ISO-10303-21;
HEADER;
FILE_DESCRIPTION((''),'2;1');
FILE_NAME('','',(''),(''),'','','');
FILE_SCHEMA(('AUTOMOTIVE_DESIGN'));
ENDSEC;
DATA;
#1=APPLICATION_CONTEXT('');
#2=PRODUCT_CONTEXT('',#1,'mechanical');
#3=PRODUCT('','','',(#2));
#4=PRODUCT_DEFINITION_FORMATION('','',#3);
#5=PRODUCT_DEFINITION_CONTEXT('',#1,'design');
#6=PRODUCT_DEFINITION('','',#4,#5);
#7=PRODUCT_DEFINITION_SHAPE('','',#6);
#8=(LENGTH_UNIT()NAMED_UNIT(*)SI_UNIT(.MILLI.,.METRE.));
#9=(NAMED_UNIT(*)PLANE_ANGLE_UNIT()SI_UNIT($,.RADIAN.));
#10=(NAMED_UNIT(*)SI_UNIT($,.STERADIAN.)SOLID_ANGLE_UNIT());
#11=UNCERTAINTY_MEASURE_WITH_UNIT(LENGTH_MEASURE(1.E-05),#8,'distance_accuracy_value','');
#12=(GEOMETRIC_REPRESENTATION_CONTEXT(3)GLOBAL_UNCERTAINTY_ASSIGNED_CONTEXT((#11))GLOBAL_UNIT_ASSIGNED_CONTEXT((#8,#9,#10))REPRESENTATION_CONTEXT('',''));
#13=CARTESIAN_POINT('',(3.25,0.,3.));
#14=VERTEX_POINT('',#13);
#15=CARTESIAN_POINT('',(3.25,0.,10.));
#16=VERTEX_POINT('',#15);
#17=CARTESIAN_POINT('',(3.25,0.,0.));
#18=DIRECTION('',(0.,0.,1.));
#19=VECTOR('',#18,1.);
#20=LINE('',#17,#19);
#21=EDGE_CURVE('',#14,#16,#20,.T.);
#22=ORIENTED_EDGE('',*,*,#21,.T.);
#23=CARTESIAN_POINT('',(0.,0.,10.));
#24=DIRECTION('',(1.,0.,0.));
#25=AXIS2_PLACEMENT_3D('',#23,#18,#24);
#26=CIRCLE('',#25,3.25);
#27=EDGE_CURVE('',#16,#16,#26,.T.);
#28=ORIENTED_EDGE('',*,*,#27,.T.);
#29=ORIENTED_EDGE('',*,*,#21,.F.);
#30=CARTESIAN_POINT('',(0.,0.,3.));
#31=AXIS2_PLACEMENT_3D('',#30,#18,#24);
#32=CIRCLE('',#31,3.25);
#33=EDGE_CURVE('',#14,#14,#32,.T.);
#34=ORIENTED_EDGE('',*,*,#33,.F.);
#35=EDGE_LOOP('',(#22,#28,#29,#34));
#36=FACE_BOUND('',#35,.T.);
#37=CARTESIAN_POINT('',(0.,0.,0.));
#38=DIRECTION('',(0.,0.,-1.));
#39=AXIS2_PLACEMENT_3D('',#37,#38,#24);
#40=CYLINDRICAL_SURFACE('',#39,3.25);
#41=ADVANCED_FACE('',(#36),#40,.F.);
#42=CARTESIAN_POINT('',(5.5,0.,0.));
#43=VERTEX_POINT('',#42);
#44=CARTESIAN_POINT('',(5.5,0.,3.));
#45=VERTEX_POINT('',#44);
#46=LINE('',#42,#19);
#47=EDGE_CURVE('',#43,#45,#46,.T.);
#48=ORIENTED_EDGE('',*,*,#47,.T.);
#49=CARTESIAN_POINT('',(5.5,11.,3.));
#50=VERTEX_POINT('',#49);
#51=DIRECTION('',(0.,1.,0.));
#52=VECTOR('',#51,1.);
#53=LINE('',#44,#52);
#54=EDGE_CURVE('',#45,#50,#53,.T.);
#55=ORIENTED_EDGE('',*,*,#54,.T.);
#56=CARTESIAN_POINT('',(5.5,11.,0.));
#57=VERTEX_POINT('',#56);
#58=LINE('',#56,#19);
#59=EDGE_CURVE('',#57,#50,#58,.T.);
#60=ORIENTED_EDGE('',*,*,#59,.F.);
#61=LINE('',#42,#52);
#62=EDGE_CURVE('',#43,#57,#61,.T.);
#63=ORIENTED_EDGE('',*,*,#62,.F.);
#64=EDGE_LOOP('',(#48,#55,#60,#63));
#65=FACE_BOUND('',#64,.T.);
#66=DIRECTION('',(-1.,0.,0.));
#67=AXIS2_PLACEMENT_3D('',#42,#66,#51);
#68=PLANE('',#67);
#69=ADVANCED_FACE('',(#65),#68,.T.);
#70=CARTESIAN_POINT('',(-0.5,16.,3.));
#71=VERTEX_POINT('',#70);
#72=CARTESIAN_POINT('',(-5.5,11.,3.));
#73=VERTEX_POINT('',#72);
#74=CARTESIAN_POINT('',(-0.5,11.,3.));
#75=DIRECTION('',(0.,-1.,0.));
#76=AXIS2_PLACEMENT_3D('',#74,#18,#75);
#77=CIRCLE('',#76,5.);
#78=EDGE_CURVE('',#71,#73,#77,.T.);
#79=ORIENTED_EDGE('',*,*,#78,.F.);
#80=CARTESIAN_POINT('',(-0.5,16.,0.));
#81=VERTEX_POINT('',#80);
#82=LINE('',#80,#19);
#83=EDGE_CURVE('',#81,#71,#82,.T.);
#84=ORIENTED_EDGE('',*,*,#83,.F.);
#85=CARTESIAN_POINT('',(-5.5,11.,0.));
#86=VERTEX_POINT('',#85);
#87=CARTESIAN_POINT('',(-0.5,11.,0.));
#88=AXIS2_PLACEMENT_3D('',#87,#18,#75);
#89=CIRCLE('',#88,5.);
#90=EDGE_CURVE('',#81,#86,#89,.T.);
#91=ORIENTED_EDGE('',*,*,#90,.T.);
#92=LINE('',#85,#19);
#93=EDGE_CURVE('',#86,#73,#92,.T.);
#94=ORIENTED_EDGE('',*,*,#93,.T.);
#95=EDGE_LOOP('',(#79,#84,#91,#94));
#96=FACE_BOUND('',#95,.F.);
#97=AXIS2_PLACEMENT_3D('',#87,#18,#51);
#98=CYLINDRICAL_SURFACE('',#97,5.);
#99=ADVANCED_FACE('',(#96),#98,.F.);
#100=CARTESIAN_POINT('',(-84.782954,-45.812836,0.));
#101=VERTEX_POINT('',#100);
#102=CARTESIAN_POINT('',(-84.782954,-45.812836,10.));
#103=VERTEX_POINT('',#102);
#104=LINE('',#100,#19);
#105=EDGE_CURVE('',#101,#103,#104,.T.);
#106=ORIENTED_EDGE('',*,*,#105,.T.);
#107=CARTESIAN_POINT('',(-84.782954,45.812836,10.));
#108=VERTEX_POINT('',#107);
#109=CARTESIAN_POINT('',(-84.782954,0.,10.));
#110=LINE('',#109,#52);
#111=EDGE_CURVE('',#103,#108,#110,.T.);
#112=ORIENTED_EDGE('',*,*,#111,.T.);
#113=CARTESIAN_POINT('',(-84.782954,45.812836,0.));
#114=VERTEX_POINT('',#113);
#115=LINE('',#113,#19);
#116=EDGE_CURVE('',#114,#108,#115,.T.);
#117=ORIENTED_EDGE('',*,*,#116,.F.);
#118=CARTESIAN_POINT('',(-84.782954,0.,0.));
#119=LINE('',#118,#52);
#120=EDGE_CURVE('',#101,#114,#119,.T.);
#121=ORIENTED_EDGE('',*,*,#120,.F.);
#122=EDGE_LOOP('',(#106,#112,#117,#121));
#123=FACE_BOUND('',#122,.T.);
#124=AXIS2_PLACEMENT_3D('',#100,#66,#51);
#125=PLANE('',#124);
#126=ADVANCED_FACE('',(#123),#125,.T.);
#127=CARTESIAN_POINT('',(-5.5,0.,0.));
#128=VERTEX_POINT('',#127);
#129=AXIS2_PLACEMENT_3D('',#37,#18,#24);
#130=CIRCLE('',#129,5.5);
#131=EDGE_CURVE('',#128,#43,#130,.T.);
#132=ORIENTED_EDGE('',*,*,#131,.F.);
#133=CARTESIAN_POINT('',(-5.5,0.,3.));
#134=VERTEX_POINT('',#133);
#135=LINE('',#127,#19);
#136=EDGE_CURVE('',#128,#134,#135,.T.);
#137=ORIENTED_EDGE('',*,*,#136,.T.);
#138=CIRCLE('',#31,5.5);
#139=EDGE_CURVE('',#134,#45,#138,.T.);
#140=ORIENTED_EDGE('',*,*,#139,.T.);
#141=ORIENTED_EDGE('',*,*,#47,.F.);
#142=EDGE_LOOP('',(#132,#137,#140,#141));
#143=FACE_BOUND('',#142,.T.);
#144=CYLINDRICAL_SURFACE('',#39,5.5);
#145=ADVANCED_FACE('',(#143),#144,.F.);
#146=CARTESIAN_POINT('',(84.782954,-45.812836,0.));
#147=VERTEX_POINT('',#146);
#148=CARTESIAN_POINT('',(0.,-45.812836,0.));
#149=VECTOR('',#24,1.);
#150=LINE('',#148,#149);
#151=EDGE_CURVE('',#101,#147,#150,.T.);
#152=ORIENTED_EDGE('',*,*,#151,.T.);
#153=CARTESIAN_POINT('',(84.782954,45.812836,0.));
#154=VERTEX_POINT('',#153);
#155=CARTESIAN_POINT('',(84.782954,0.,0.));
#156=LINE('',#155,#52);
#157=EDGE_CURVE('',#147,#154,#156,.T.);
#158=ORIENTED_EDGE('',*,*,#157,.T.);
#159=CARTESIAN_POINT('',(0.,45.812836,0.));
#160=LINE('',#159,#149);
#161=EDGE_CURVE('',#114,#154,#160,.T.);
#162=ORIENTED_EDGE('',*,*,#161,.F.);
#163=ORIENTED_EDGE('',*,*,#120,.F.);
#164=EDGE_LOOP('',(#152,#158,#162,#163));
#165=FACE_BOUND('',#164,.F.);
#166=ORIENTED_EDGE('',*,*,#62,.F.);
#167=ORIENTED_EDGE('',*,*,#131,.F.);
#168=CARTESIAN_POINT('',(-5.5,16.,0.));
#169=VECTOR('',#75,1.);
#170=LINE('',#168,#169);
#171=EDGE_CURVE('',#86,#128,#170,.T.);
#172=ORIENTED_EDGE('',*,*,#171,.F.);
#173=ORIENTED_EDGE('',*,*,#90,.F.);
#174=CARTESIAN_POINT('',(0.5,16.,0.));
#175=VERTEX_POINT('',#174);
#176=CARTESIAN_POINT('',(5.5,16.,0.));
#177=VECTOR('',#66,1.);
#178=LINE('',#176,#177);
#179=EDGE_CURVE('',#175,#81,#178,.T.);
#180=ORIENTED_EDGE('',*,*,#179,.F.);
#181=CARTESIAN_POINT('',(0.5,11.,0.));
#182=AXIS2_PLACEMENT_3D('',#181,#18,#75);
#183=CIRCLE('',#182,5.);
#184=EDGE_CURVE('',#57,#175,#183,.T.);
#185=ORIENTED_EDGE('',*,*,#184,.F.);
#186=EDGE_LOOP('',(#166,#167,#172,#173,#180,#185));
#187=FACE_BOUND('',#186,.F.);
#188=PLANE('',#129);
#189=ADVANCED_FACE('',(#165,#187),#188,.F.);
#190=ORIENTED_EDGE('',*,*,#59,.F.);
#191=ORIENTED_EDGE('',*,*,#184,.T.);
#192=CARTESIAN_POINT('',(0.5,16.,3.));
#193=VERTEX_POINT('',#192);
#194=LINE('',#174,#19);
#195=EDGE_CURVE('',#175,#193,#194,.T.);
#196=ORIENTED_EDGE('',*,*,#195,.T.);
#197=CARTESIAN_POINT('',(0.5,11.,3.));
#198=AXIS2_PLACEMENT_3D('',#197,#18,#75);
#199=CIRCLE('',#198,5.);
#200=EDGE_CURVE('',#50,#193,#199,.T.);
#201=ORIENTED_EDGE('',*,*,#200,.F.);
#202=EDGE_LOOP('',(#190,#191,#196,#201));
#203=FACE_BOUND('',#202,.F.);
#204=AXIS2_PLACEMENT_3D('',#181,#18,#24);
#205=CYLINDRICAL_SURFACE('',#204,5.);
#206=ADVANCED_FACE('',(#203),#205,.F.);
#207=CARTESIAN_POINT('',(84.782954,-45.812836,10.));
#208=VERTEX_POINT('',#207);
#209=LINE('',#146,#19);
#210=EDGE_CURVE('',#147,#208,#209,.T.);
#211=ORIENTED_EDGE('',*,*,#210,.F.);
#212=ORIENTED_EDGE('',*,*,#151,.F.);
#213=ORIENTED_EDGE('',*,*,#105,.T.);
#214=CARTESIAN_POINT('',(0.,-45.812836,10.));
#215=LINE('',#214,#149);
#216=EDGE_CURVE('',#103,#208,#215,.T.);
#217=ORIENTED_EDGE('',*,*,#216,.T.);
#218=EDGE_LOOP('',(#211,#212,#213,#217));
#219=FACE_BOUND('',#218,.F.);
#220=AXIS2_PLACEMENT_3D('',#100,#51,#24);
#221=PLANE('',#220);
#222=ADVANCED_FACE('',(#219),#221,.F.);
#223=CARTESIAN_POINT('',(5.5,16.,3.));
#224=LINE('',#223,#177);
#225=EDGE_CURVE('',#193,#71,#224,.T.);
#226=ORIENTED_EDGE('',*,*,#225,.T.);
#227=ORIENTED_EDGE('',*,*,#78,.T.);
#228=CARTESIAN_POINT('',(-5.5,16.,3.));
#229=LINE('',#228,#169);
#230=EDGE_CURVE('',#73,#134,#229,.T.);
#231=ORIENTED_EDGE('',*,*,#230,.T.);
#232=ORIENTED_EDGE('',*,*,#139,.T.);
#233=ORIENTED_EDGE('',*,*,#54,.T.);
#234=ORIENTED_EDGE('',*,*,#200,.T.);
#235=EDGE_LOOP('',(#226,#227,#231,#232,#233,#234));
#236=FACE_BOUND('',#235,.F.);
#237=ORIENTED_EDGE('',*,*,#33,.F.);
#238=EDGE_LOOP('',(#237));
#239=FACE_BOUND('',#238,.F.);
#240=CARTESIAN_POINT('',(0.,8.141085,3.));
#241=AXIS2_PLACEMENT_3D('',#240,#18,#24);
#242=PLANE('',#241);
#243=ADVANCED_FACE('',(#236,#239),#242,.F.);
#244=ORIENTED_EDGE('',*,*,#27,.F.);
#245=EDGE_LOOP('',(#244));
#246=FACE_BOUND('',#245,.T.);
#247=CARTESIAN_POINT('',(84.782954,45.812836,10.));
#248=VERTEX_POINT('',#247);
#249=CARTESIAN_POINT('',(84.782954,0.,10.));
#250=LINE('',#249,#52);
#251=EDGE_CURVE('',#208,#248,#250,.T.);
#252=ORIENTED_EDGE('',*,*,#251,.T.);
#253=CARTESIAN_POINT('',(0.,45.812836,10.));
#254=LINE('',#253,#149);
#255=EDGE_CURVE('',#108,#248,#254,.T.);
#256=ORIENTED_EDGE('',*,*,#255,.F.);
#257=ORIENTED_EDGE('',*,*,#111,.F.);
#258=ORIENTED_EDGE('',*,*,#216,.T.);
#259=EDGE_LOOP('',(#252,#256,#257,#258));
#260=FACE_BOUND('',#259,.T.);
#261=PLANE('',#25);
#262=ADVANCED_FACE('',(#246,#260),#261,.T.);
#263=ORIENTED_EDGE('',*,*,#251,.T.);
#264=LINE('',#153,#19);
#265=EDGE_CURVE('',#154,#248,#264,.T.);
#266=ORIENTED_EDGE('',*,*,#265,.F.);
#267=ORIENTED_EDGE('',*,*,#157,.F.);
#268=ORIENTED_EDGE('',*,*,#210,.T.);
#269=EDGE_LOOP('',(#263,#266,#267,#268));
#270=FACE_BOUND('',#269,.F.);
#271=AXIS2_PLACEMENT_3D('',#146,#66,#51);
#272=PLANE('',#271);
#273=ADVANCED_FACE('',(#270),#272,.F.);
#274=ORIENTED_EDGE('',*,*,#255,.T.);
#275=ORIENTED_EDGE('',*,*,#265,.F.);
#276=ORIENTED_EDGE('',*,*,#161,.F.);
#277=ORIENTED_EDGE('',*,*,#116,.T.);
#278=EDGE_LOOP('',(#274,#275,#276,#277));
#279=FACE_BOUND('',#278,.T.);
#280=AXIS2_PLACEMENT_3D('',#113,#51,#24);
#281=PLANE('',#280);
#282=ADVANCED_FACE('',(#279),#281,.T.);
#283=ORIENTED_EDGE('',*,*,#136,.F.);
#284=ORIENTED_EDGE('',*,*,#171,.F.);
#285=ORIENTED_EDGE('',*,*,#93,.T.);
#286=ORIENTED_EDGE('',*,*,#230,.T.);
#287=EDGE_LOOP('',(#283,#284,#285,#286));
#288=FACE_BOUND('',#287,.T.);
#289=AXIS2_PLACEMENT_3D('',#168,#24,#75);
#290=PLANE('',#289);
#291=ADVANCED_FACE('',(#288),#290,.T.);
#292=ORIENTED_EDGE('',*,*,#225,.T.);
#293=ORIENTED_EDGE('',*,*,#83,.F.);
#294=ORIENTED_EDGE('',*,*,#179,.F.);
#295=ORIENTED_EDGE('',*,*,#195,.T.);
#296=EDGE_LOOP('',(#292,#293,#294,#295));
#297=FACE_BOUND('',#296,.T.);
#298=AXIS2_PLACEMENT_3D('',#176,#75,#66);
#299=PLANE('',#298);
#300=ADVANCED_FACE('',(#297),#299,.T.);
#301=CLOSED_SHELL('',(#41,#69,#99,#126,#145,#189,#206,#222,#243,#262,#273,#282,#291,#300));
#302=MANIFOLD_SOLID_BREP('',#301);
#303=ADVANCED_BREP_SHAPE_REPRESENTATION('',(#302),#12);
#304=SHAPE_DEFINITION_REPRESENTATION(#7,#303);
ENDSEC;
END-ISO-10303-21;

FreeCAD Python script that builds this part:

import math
import FreeCAD as App
import Part
import Sketcher
from FreeCAD import Vector
Q = App.Units.Quantity


def edges_at(feature, points):
    """Names of the edges that pass closest to the given points."""
    edges = feature.Shape.Edges
    near = lambda p: min(range(len(edges)), key=lambda i: edges[i].distToShape(Part.Vertex(*p))[0])
    return sorted({f"Edge{near(p) + 1}" for p in points})

doc = App.newDocument("Part")
body = doc.addObject("PartDesign::Body", "Body")

# Sketch on XY plane
sketch1 = body.newObject("Sketcher::SketchObject", "Sketch")
sketch1.AttachmentSupport = (doc.getObject("XY_Plane"), [""])
sketch1.MapMode = "FlatFace"
sketch1.addGeometry([
    Part.LineSegment(Vector(-84.8, 45.8, 0), Vector(-84.8, -45.8, 0)),  # 0
    Part.LineSegment(Vector(-84.8, -45.8, 0), Vector(84.8, -45.8, 0)),  # 1
    Part.LineSegment(Vector(84.8, -45.8, 0), Vector(84.8, 45.8, 0)),  # 2
    Part.LineSegment(Vector(84.8, 45.8, 0), Vector(-84.8, 45.8, 0)),  # 3
    Part.Circle(Vector(0, 0, 0), Vector(0, 0, 1), 3.2),  # 4
], False)
sketch1.addConstraint([
    Sketcher.Constraint("Coincident", 0, 2, 1, 1),
    Sketcher.Constraint("Coincident", 1, 2, 2, 1),
    Sketcher.Constraint("Coincident", 2, 2, 3, 1),
    Sketcher.Constraint("Coincident", 3, 2, 0, 1),
    Sketcher.Constraint("Vertical", 0),
    Sketcher.Constraint("Horizontal", 1),
    Sketcher.Constraint("Vertical", 2),
    Sketcher.Constraint("Horizontal", 3),
    Sketcher.Constraint("Coincident", 4, 3, -1, 1),
    Sketcher.Constraint("Symmetric", 0, 2, 2, 2, -1, 1),
    Sketcher.Constraint("Diameter", 4, Q("6.5 mm")),
    Sketcher.Constraint("DistanceX", 1, 1, 1, 2, Q("169.565908 mm")),
    Sketcher.Constraint("DistanceY", 0, 2, 0, 1, Q("91.625672 mm")),
])
pad1 = body.newObject("PartDesign::Pad", "Pad")
pad1.Profile = sketch1
pad1.Length = 10

# Sketch on XY plane
sketch2 = body.newObject("Sketcher::SketchObject", "Sketch001")
sketch2.AttachmentSupport = (doc.getObject("XY_Plane"), [""])
sketch2.MapMode = "FlatFace"
sketch2.addGeometry([
    Part.LineSegment(Vector(5.5, 0, 0), Vector(5.5, 16, 0)),  # 0
    Part.LineSegment(Vector(5.5, 16, 0), Vector(-5.5, 16, 0)),  # 1
    Part.LineSegment(Vector(-5.5, 16, 0), Vector(-5.5, 0, 0)),  # 2
    Part.ArcOfCircle(Part.Circle(Vector(0, 0, 0), Vector(0, 0, 1), 5.5), math.radians(180), math.radians(360)),  # 3
    Part.Circle(Vector(0, 0, 0), Vector(0, 0, 1), 3.2),  # 4
], False)
sketch2.addConstraint([
    Sketcher.Constraint("Coincident", 0, 2, 1, 1),
    Sketcher.Constraint("Coincident", 1, 2, 2, 1),
    Sketcher.Constraint("Tangent", 2, 2, 3, 1),
    Sketcher.Constraint("Tangent", 3, 2, 0, 1),
    Sketcher.Constraint("Vertical", 0),
    Sketcher.Constraint("Horizontal", 1),
    Sketcher.Constraint("Vertical", 2),
    Sketcher.Constraint("Coincident", 3, 3, -1, 1),
    Sketcher.Constraint("Coincident", 4, 3, -1, 1),
    Sketcher.Constraint("Diameter", 4, Q("6.5 mm")),
    Sketcher.Constraint("Radius", 3, Q("5.5 mm")),
    Sketcher.Constraint("DistanceY", 0, 1, 0, 2, Q("16 mm")),
])
pocket1 = body.newObject("PartDesign::Pocket", "Pocket")
pocket1.Profile = sketch2
pocket1.Length = 3
pocket1.Reversed = True
doc.recompute()

fillet = body.newObject("PartDesign::Fillet", "Fillet")
fillet.Base = (pocket1, edges_at(pocket1, [(5.5, 16, 1.5), (-5.5, 16, 1.5)]))
fillet.Radius = 5

doc.recompute()
